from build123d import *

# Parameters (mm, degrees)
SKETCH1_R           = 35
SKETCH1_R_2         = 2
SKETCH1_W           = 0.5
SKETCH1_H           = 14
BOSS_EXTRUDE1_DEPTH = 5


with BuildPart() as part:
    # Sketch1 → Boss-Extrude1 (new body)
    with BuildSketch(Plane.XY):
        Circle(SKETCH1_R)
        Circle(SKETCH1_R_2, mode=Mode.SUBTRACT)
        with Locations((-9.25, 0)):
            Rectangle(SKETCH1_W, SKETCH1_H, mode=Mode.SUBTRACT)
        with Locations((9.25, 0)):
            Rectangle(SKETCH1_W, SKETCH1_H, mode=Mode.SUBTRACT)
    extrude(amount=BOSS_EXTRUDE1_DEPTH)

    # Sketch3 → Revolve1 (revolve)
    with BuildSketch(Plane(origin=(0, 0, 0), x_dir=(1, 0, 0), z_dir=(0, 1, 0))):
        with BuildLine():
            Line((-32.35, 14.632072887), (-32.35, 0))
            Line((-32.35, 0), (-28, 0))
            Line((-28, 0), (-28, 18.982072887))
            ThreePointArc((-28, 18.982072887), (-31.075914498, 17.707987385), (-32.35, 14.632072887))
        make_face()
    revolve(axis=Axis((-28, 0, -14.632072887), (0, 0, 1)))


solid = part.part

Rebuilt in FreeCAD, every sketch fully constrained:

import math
import FreeCAD as App
import Part
import Sketcher
Q = App.Units.Quantity


def add_polygon(sketch, points):
    """Adds a closed chain of lines whose ends are joined by coincident constraints."""
    first, n = sketch.GeometryCount, len(points)
    for a, b in zip(points, points[1:] + points[:1]):
        sketch.addGeometry(Part.LineSegment(App.Vector(*a, 0), App.Vector(*b, 0)), False)
    for i in range(n):
        sketch.addConstraint(Sketcher.Constraint("Coincident", first + i, 2, first + (i + 1) % n, 1))

doc = App.newDocument("Part")
body = doc.addObject("PartDesign::Body", "Body")

# Sketch on XY plane
sketch1 = body.newObject("Sketcher::SketchObject", "Sketch")
sketch1.AttachmentSupport = (doc.getObject("XY_Plane"), [""])
sketch1.MapMode = "FlatFace"
sketch1.addGeometry(Part.Circle(App.Vector(0, 0, 0), App.Vector(0, 0, 1), 35), False)  # 0
add_polygon(sketch1, [(-9, -7), (-9.5, -7), (-9.5, 7), (-9, 7)])  # lines 1-4
sketch1.addGeometry(Part.Circle(App.Vector(0, 0, 0), App.Vector(0, 0, 1), 2), False)  # 5
add_polygon(sketch1, [(9.5, -7), (9, -7), (9, 7), (9.5, 7)])  # lines 6-9
sketch1.addConstraint([
    Sketcher.Constraint("Horizontal", 1),
    Sketcher.Constraint("Vertical", 2),
    Sketcher.Constraint("Horizontal", 3),
    Sketcher.Constraint("Vertical", 4),
    Sketcher.Constraint("Horizontal", 6),
    Sketcher.Constraint("Vertical", 7),
    Sketcher.Constraint("Horizontal", 8),
    Sketcher.Constraint("Vertical", 9),
    Sketcher.Constraint("Coincident", 0, 3, -1, 1),
    Sketcher.Constraint("Coincident", 5, 3, -1, 1),
    Sketcher.Constraint("Symmetric", 3, 2, 6, 2, -1, 1),
    Sketcher.Constraint("Symmetric", 1, 2, 8, 2, -1, 1),
    Sketcher.Constraint("Horizontal", 4, 2, 6, 2),
    Sketcher.Constraint("Diameter", 0, Q("70 mm")),
    Sketcher.Constraint("Diameter", 5, Q("4 mm")),
    Sketcher.Constraint("DistanceY", 2, 1, 2, 2, Q("14 mm")),
    Sketcher.Constraint("DistanceX", 1, 2, 1, 1, Q("0.5 mm")),
    Sketcher.Constraint("DistanceX", 3, 2, -1, 1, Q("9 mm")),
])
pad1 = body.newObject("PartDesign::Pad", "Pad")
pad1.Profile = sketch1
pad1.Length = 5

# Sketch on XZ plane
sketch2 = body.newObject("Sketcher::SketchObject", "Sketch001")
sketch2.AttachmentSupport = (doc.getObject("XZ_Plane"), [""])
sketch2.MapMode = "FlatFace"
sketch2.addGeometry([
    Part.LineSegment(App.Vector(-32.4, -14.6, 0), App.Vector(-32.4, 0, 0)),
    Part.LineSegment(App.Vector(-32.4, 0, 0), App.Vector(-28, 0, 0)),
    Part.LineSegment(App.Vector(-28, 0, 0), App.Vector(-28, -19, 0)),
    Part.ArcOfCircle(Part.Circle(App.Vector(-28, -14.6, 0), App.Vector(0, 0, 1), 4.4), math.radians(-180), math.radians(-90)),
], False)
sketch2.addGeometry(Part.LineSegment(App.Vector(-28, -19, 0), App.Vector(-28, 0, 0)), True)  # axis
sketch2.addConstraint([
    Sketcher.Constraint("Coincident", 0, 2, 1, 1),
    Sketcher.Constraint("Coincident", 1, 2, 2, 1),
    Sketcher.Constraint("Coincident", 2, 2, 3, 2),
    Sketcher.Constraint("Tangent", 3, 1, 0, 1),
    Sketcher.Constraint("Vertical", 0),
    Sketcher.Constraint("Horizontal", 1),
    Sketcher.Constraint("Vertical", 2),
    Sketcher.Constraint("Vertical", 4),
    Sketcher.Constraint("Coincident", 4, 1, 2, 2),
    Sketcher.Constraint("PointOnObject", 0, 2, -1),
    Sketcher.Constraint("PointOnObject", 4, 2, -1),
    Sketcher.Constraint("Vertical", 3, 3, 1, 2),
    Sketcher.Constraint("Radius", 3, Q("4.35 mm")),
    Sketcher.Constraint("DistanceX", 3, 3, -1, 1, Q("28 mm")),
    Sketcher.Constraint("DistanceY", 0, 1, 0, 2, Q("14.632073 mm")),
])
revolution = body.newObject("PartDesign::Revolution", "Revolution")
revolution.Profile = sketch2
revolution.ReferenceAxis = (sketch2, ["Axis0"])
revolution.Angle = 360

doc.recompute()
